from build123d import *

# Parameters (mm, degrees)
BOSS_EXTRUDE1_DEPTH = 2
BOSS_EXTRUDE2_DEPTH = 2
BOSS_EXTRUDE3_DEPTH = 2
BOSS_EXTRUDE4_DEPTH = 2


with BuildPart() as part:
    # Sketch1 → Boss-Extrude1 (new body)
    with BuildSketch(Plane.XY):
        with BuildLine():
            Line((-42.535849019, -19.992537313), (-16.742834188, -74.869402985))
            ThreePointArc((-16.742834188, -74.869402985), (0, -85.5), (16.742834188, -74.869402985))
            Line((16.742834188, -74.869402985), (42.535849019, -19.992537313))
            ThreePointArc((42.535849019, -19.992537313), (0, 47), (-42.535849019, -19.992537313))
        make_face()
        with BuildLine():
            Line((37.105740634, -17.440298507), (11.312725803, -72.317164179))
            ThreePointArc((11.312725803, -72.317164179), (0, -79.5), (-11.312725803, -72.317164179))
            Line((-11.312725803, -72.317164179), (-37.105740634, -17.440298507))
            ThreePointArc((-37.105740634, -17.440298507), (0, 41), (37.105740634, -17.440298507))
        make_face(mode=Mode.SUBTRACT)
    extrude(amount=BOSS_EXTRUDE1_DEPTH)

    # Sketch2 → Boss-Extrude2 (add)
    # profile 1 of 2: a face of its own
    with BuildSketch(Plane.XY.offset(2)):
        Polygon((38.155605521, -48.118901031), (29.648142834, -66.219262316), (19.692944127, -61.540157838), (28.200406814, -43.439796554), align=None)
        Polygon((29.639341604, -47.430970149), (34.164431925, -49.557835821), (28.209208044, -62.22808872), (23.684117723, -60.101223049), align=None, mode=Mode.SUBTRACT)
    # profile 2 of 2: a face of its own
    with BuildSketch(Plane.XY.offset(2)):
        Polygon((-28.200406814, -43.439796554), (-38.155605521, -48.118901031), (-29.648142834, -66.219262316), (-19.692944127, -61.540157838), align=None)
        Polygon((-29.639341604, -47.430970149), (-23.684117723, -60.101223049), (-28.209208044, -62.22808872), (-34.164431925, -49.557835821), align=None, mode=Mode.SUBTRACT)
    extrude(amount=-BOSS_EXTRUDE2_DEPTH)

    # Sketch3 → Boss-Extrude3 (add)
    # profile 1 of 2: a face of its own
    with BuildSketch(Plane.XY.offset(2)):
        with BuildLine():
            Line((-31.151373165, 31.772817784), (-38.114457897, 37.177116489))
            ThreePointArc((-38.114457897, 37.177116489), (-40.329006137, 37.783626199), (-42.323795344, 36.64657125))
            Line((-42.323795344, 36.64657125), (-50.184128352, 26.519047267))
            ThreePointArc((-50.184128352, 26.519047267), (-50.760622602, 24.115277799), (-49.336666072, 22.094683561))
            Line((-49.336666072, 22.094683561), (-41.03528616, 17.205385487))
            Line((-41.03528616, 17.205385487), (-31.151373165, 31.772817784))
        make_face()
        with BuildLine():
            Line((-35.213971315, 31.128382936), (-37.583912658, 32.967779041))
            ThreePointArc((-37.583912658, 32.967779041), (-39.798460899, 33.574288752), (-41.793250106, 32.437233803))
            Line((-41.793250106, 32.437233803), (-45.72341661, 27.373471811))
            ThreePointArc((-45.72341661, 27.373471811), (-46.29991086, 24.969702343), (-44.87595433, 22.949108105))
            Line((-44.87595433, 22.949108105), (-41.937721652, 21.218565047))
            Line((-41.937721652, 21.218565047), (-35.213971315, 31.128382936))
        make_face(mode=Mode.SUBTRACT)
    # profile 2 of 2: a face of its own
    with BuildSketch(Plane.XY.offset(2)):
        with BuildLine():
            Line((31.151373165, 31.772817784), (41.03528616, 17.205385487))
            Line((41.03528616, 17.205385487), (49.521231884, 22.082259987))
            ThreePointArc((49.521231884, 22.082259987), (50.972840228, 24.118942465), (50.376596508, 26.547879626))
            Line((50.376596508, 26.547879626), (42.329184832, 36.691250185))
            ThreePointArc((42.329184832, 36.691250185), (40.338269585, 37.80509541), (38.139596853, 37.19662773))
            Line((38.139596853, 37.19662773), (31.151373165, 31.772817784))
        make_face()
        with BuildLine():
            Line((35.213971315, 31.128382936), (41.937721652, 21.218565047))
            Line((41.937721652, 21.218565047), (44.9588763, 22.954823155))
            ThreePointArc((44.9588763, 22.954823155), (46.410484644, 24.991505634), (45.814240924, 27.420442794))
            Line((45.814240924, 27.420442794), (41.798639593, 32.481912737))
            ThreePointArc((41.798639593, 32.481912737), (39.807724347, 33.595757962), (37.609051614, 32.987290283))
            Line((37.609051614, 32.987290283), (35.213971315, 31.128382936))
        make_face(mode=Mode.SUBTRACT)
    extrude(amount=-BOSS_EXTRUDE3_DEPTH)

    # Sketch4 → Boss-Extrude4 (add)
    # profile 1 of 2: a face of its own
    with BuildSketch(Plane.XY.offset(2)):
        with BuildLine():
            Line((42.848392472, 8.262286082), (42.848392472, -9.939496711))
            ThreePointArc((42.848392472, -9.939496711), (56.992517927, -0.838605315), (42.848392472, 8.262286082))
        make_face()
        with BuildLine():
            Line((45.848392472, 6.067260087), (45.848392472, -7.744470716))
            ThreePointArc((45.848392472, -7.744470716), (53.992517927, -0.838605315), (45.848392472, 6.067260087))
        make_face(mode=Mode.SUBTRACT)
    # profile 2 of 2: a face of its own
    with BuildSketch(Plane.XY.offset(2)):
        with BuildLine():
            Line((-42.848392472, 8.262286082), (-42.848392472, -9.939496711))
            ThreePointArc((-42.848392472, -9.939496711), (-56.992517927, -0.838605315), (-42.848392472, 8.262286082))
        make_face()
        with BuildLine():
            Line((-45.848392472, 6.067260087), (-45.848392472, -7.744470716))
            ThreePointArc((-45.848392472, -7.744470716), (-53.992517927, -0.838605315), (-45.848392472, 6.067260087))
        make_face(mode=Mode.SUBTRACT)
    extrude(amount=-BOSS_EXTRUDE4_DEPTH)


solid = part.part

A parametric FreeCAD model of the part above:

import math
import FreeCAD as App
import Part
import Sketcher

V = App.Vector
Q = App.Units.Quantity

doc = App.newDocument("Part")
params = doc.addObject("Spreadsheet::Sheet", "Params")
for row, (alias, value) in enumerate([
    ("sketch1_radius", "47 mm"),
    ("sketch1_radius2", "41 mm"),
    ("sketch1_radius3", "18.5 mm"),
    ("pad1_length", "2 mm"),
    ("sketch2_length", "20 mm"),
    ("sketch2_length2", "11 mm"),
    ("sketch2_length3", "5 mm"),
    ("sketch2_length4", "14 mm"),
    ("pad2_length", "2 mm"),
    ("sketch3_radius", "3 mm"),
    ("sketch3_length", "3 mm"),
    ("pad3_length", "2 mm"),
    ("sketch4_radius", "10 mm"),
    ("sketch4_radius2", "7 mm"),
    ("pad4_length", "2 mm"),
], start=1):
    params.set(f"A{row}", alias)
    params.set(f"B{row}", "=" + value)
    params.setAlias(f"B{row}", alias)

body = doc.addObject("PartDesign::Body", "Body")

sketch1 = body.newObject("Sketcher::SketchObject", "Sketch")
sketch1.AttachmentSupport = (doc.getObject("XY_Plane"), [""])
sketch1.MapMode = "FlatFace"
sketch1.addGeometry(Part.LineSegment(V(-42.535849, -19.992537, 0), V(-16.742834, -74.869403, 0)), False)
sketch1.addGeometry(Part.ArcOfCircle(Part.Circle(V(0, -67, 0), V(0, 0, 1), 18.5), math.radians(-154.825716), math.radians(-25.174284)), False)
sketch1.addGeometry(Part.LineSegment(V(16.742834, -74.869403, 0), V(42.535849, -19.992537, 0)), False)
sketch1.addGeometry(Part.ArcOfCircle(Part.Circle(V(0, 0, 0), V(0, 0, 1), 47), math.radians(-25.174284), math.radians(205.174284)), False)
sketch1.addGeometry(Part.ArcOfCircle(Part.Circle(V(0, 0, 0), V(0, 0, 1), 41), math.radians(-25.174284), math.radians(205.174284)), False)
sketch1.addGeometry(Part.LineSegment(V(37.105741, -17.440299, 0), V(11.312726, -72.317164, 0)), False)
sketch1.addGeometry(Part.ArcOfCircle(Part.Circle(V(0, -67, 0), V(0, 0, 1), 12.5), math.radians(-154.825716), math.radians(-25.174284)), False)
sketch1.addGeometry(Part.LineSegment(V(-11.312726, -72.317164, 0), V(-37.105741, -17.440299, 0)), False)
sketch1.addConstraint(Sketcher.Constraint("Tangent", 0, 2, 1, 1))
sketch1.addConstraint(Sketcher.Constraint("Tangent", 1, 2, 2, 1))
sketch1.addConstraint(Sketcher.Constraint("Tangent", 2, 2, 3, 1))
sketch1.addConstraint(Sketcher.Constraint("Tangent", 3, 2, 0, 1))
sketch1.addConstraint(Sketcher.Constraint("Tangent", 4, 1, 5, 1))
sketch1.addConstraint(Sketcher.Constraint("Tangent", 5, 2, 6, 2))
sketch1.addConstraint(Sketcher.Constraint("Tangent", 6, 1, 7, 1))
sketch1.addConstraint(Sketcher.Constraint("Tangent", 7, 2, 4, 2))
sketch1.addConstraint(Sketcher.Constraint("Coincident", 3, 3, -1, 1))
sketch1.addConstraint(Sketcher.Constraint("Coincident", 4, 3, -1, 1))
sketch1.addConstraint(Sketcher.Constraint("Coincident", 6, 3, 1, 3))
sketch1.addConstraint(Sketcher.Constraint("PointOnObject", 1, 3, -2))
sketch1.addConstraint(Sketcher.Constraint("Parallel", 2, 5))
sketch1.addConstraint(Sketcher.Constraint("Radius", 3, Q("47 mm")))
sketch1.addConstraint(Sketcher.Constraint("Radius", 4, Q("41 mm")))
sketch1.addConstraint(Sketcher.Constraint("Radius", 1, Q("18.5 mm")))
sketch1.addConstraint(Sketcher.Constraint("DistanceY", 1, 3, -1, 1, Q("67 mm")))
sketch1.setExpression("Constraints[13]", "Params.sketch1_radius")
sketch1.setExpression("Constraints[14]", "Params.sketch1_radius2")
sketch1.setExpression("Constraints[15]", "Params.sketch1_radius3")
pad1 = body.newObject("PartDesign::Pad", "Pad")
pad1.Profile = sketch1
pad1.setExpression("Length", "Params.pad1_length")

sketch2 = body.newObject("Sketcher::SketchObject", "Sketch001")
sketch2.AttachmentSupport = (doc.getObject("XY_Plane"), [""])
sketch2.MapMode = "FlatFace"
sketch2.AttachmentOffset = App.Placement(V(0, 0, 2), App.Rotation())
sketch2.addGeometry(Part.LineSegment(V(29.648143, -66.219262, 0), V(38.155606, -48.118901, 0)), False)
sketch2.addGeometry(Part.LineSegment(V(38.155606, -48.118901, 0), V(28.200407, -43.439797, 0)), False)
sketch2.addGeometry(Part.LineSegment(V(28.200407, -43.439797, 0), V(19.692944, -61.540158, 0)), False)
sketch2.addGeometry(Part.LineSegment(V(19.692944, -61.540158, 0), V(29.648143, -66.219262, 0)), False)
sketch2.addGeometry(Part.LineSegment(V(29.639342, -47.43097, 0), V(34.164432, -49.557836, 0)), False)
sketch2.addGeometry(Part.LineSegment(V(34.164432, -49.557836, 0), V(28.209208, -62.228089, 0)), False)
sketch2.addGeometry(Part.LineSegment(V(28.209208, -62.228089, 0), V(23.684118, -60.101223, 0)), False)
sketch2.addGeometry(Part.LineSegment(V(23.684118, -60.101223, 0), V(29.639342, -47.43097, 0)), False)
sketch2.addGeometry(Part.LineSegment(V(-28.200407, -43.439797, 0), V(-38.155606, -48.118901, 0)), False)
sketch2.addGeometry(Part.LineSegment(V(-38.155606, -48.118901, 0), V(-29.648143, -66.219262, 0)), False)
sketch2.addGeometry(Part.LineSegment(V(-29.648143, -66.219262, 0), V(-19.692944, -61.540158, 0)), False)
sketch2.addGeometry(Part.LineSegment(V(-19.692944, -61.540158, 0), V(-28.200407, -43.439797, 0)), False)
sketch2.addGeometry(Part.LineSegment(V(-34.164432, -49.557836, 0), V(-29.639342, -47.43097, 0)), False)
sketch2.addGeometry(Part.LineSegment(V(-29.639342, -47.43097, 0), V(-23.684118, -60.101223, 0)), False)
sketch2.addGeometry(Part.LineSegment(V(-23.684118, -60.101223, 0), V(-28.209208, -62.228089, 0)), False)
sketch2.addGeometry(Part.LineSegment(V(-28.209208, -62.228089, 0), V(-34.164432, -49.557836, 0)), False)
sketch2.addConstraint(Sketcher.Constraint("Coincident", 0, 2, 1, 1))
sketch2.addConstraint(Sketcher.Constraint("Coincident", 1, 2, 2, 1))
sketch2.addConstraint(Sketcher.Constraint("Coincident", 2, 2, 3, 1))
sketch2.addConstraint(Sketcher.Constraint("Coincident", 3, 2, 0, 1))
sketch2.addConstraint(Sketcher.Constraint("Coincident", 4, 2, 5, 1))
sketch2.addConstraint(Sketcher.Constraint("Coincident", 5, 2, 6, 1))
sketch2.addConstraint(Sketcher.Constraint("Coincident", 6, 2, 7, 1))
sketch2.addConstraint(Sketcher.Constraint("Coincident", 7, 2, 4, 1))
sketch2.addConstraint(Sketcher.Constraint("Coincident", 8, 2, 9, 1))
sketch2.addConstraint(Sketcher.Constraint("Coincident", 9, 2, 10, 1))
sketch2.addConstraint(Sketcher.Constraint("Coincident", 10, 2, 11, 1))
sketch2.addConstraint(Sketcher.Constraint("Coincident", 11, 2, 8, 1))
sketch2.addConstraint(Sketcher.Constraint("Coincident", 12, 2, 13, 1))
sketch2.addConstraint(Sketcher.Constraint("Coincident", 13, 2, 14, 1))
sketch2.addConstraint(Sketcher.Constraint("Coincident", 14, 2, 15, 1))
sketch2.addConstraint(Sketcher.Constraint("Coincident", 15, 2, 12, 1))
sketch2.addConstraint(Sketcher.Constraint("Symmetric", 0, 2, 8, 2, -2))
sketch2.addConstraint(Sketcher.Constraint("Symmetric", 3, 2, 9, 2, -2))
sketch2.addConstraint(Sketcher.Constraint("Symmetric", 2, 2, 10, 2, -2))
sketch2.addConstraint(Sketcher.Constraint("Symmetric", 1, 2, 11, 2, -2))
sketch2.addConstraint(Sketcher.Constraint("Symmetric", 7, 2, 12, 2, -2))
sketch2.addConstraint(Sketcher.Constraint("Symmetric", 6, 2, 13, 2, -2))
sketch2.addConstraint(Sketcher.Constraint("Symmetric", 5, 2, 14, 2, -2))
sketch2.addConstraint(Sketcher.Constraint("Symmetric", 4, 2, 15, 2, -2))
sketch2.addConstraint(Sketcher.Constraint("Perpendicular", 0, 1))
sketch2.addConstraint(Sketcher.Constraint("Perpendicular", 1, 2))
sketch2.addConstraint(Sketcher.Constraint("Perpendicular", 2, 3))
sketch2.addConstraint(Sketcher.Constraint("Parallel", 3, 4))
sketch2.addConstraint(Sketcher.Constraint("Perpendicular", 4, 5))
sketch2.addConstraint(Sketcher.Constraint("Perpendicular", 5, 6))
sketch2.addConstraint(Sketcher.Constraint("Perpendicular", 6, 7))
sketch2.addConstraint(Sketcher.Constraint("Distance", 0, Q("20 mm")))
sketch2.addConstraint(Sketcher.Constraint("Distance", 1, Q("11 mm")))
sketch2.addConstraint(Sketcher.Constraint("Distance", 4, Q("5 mm")))
sketch2.addConstraint(Sketcher.Constraint("Distance", 5, Q("14 mm")))
sketch2.addConstraint(Sketcher.Constraint("DistanceY", 0, 2, -1, 1, Q("48.118901 mm")))
sketch2.addConstraint(Sketcher.Constraint("DistanceX", 1, 2, 0, 2, Q("9.955199 mm")))
sketch2.addConstraint(Sketcher.Constraint("DistanceX", 1, 2, 5, 2, Q("0.008801 mm")))
sketch2.addConstraint(Sketcher.Constraint("DistanceX", -1, 1, 4, 2, Q("34.164432 mm")))
sketch2.addConstraint(Sketcher.Constraint("DistanceY", 5, 2, -1, 1, Q("62.228089 mm")))
sketch2.setExpression("Constraints[31]", "Params.sketch2_length")
sketch2.setExpression("Constraints[32]", "Params.sketch2_length2")
sketch2.setExpression("Constraints[33]", "Params.sketch2_length3")
sketch2.setExpression("Constraints[34]", "Params.sketch2_length4")
pad2 = body.newObject("PartDesign::Pad", "Pad001")
pad2.Profile = sketch2
pad2.setExpression("Length", "Params.pad2_length")
pad2.Reversed = True

sketch3 = body.newObject("Sketcher::SketchObject", "Sketch002")
sketch3.AttachmentSupport = (doc.getObject("XY_Plane"), [""])
sketch3.MapMode = "FlatFace"
sketch3.AttachmentOffset = App.Placement(V(0, 0, 2), App.Rotation())
sketch3.addGeometry(Part.LineSegment(V(-31.151373, 31.772818, 0), V(-38.114458, 37.177116, 0)), False)
sketch3.addGeometry(Part.ArcOfCircle(Part.Circle(V(-39.953854, 34.807175, 0), V(0, 0, 1), 3), math.radians(52.183684), math.radians(142.183684)), False)
sketch3.addGeometry(Part.LineSegment(V(-42.323795, 36.646571, 0), V(-50.184128, 26.519047, 0)), False)
sketch3.addGeometry(Part.ArcOfCircle(Part.Circle(V(-47.814187, 24.679651, 0), V(0, 0, 1), 3), math.radians(142.183684), math.radians(239.503015)), False)
sketch3.addGeometry(Part.LineSegment(V(-49.336666, 22.094684, 0), V(-41.035286, 17.205385, 0)), False)
sketch3.addGeometry(Part.LineSegment(V(-41.035286, 17.205385, 0), V(-31.151373, 31.772818, 0)), False)
sketch3.addGeometry(Part.LineSegment(V(-37.583913, 32.967779, 0), V(-35.213971, 31.128383, 0)), False)
sketch3.addGeometry(Part.LineSegment(V(-35.213971, 31.128383, 0), V(-41.937722, 21.218565, 0)), False)
sketch3.addGeometry(Part.LineSegment(V(-41.937722, 21.218565, 0), V(-44.875954, 22.949108, 0)), False)
sketch3.addGeometry(Part.ArcOfCircle(Part.Circle(V(-43.353475, 25.534076, 0), V(0, 0, 1), 3), math.radians(142.183684), math.radians(239.503015)), False)
sketch3.addGeometry(Part.LineSegment(V(-45.723417, 27.373472, 0), V(-41.79325, 32.437234, 0)), False)
sketch3.addGeometry(Part.ArcOfCircle(Part.Circle(V(-39.423309, 30.597838, 0), V(0, 0, 1), 3), math.radians(52.183684), math.radians(142.183684)), False)
sketch3.addGeometry(Part.LineSegment(V(31.151373, 31.772818, 0), V(41.035286, 17.205385, 0)), False)
sketch3.addGeometry(Part.LineSegment(V(41.035286, 17.205385, 0), V(49.521232, 22.08226, 0)), False)
sketch3.addGeometry(Part.ArcOfCircle(Part.Circle(V(48.026405, 24.683316, 0), V(0, 0, 1), 3), math.radians(-60.11401), math.radians(38.427311)), False)
sketch3.addGeometry(Part.LineSegment(V(50.376597, 26.54788, 0), V(42.329185, 36.69125, 0)), False)
sketch3.addGeometry(Part.ArcOfCircle(Part.Circle(V(39.978993, 34.826686, 0), V(0, 0, 1), 3), math.radians(38.427311), math.radians(127.816316)), False)
sketch3.addGeometry(Part.LineSegment(V(38.139597, 37.196628, 0), V(31.151373, 31.772818, 0)), False)
sketch3.addGeometry(Part.LineSegment(V(41.937722, 21.218565, 0), V(35.213971, 31.128383, 0)), False)
sketch3.addGeometry(Part.LineSegment(V(35.213971, 31.128383, 0), V(37.609052, 32.98729, 0)), False)
sketch3.addGeometry(Part.ArcOfCircle(Part.Circle(V(39.448448, 30.617349, 0), V(0, 0, 1), 3), math.radians(38.427311), math.radians(127.816316)), False)
sketch3.addGeometry(Part.LineSegment(V(41.79864, 32.481913, 0), V(45.814241, 27.420443, 0)), False)
sketch3.addGeometry(Part.ArcOfCircle(Part.Circle(V(43.464049, 25.555879, 0), V(0, 0, 1), 3), math.radians(-60.11401), math.radians(38.427311)), False)
sketch3.addGeometry(Part.LineSegment(V(44.958876, 22.954823, 0), V(41.937722, 21.218565, 0)), False)
sketch3.addConstraint(Sketcher.Constraint("Tangent", 0, 2, 1, 1))
sketch3.addConstraint(Sketcher.Constraint("Tangent", 1, 2, 2, 1))
sketch3.addConstraint(Sketcher.Constraint("Tangent", 2, 2, 3, 1))
sketch3.addConstraint(Sketcher.Constraint("Tangent", 3, 2, 4, 1))
sketch3.addConstraint(Sketcher.Constraint("Coincident", 4, 2, 5, 1))
sketch3.addConstraint(Sketcher.Constraint("Coincident", 5, 2, 0, 1))
sketch3.addConstraint(Sketcher.Constraint("Coincident", 6, 2, 7, 1))
sketch3.addConstraint(Sketcher.Constraint("Coincident", 7, 2, 8, 1))
sketch3.addConstraint(Sketcher.Constraint("Tangent", 8, 2, 9, 2))
sketch3.addConstraint(Sketcher.Constraint("Tangent", 9, 1, 10, 1))
sketch3.addConstraint(Sketcher.Constraint("Tangent", 10, 2, 11, 2))
sketch3.addConstraint(Sketcher.Constraint("Tangent", 11, 1, 6, 1))
sketch3.addConstraint(Sketcher.Constraint("Coincident", 12, 2, 13, 1))
sketch3.addConstraint(Sketcher.Constraint("Tangent", 13, 2, 14, 1))
sketch3.addConstraint(Sketcher.Constraint("Tangent", 14, 2, 15, 1))
sketch3.addConstraint(Sketcher.Constraint("Tangent", 15, 2, 16, 1))
sketch3.addConstraint(Sketcher.Constraint("Tangent", 16, 2, 17, 1))
sketch3.addConstraint(Sketcher.Constraint("Coincident", 17, 2, 12, 1))
sketch3.addConstraint(Sketcher.Constraint("Coincident", 18, 2, 19, 1))
sketch3.addConstraint(Sketcher.Constraint("Tangent", 19, 2, 20, 2))
sketch3.addConstraint(Sketcher.Constraint("Tangent", 20, 1, 21, 1))
sketch3.addConstraint(Sketcher.Constraint("Tangent", 21, 2, 22, 2))
sketch3.addConstraint(Sketcher.Constraint("Tangent", 22, 1, 23, 1))
sketch3.addConstraint(Sketcher.Constraint("Coincident", 23, 2, 18, 1))
sketch3.addConstraint(Sketcher.Constraint("Equal", 1, 3))
sketch3.addConstraint(Sketcher.Constraint("Equal", 3, 9))
sketch3.addConstraint(Sketcher.Constraint("Equal", 9, 11))
sketch3.addConstraint(Sketcher.Constraint("Equal", 11, 14))
sketch3.addConstraint(Sketcher.Constraint("Equal", 14, 16))
sketch3.addConstraint(Sketcher.Constraint("Equal", 16, 20))
sketch3.addConstraint(Sketcher.Constraint("Equal", 20, 22))
sketch3.addConstraint(Sketcher.Constraint("Symmetric", 4, 2, 12, 2, -2))
sketch3.addConstraint(Sketcher.Constraint("Symmetric", 5, 2, 17, 2, -2))
sketch3.addConstraint(Sketcher.Constraint("Symmetric", 6, 2, 18, 2, -2))
sketch3.addConstraint(Sketcher.Constraint("Symmetric", 7, 2, 23, 2, -2))
sketch3.addConstraint(Sketcher.Constraint("Perpendicular", 0, 2))
sketch3.addConstraint(Sketcher.Constraint("Perpendicular", 2, 6))
sketch3.addConstraint(Sketcher.Constraint("Parallel", 5, 7))
sketch3.addConstraint(Sketcher.Constraint("Parallel", 4, 8))
sketch3.addConstraint(Sketcher.Constraint("Perpendicular", 6, 10))
sketch3.addConstraint(Sketcher.Constraint("Parallel", 17, 19))
sketch3.addConstraint(Sketcher.Constraint("Parallel", 15, 21))
sketch3.addConstraint(Sketcher.Constraint("Parallel", 13, 23))
sketch3.addConstraint(Sketcher.Constraint("Radius", 1, Q("3 mm")))
sketch3.addConstraint(Sketcher.Constraint("Distance", 6, Q("3 mm")))
sketch3.addConstraint(Sketcher.Constraint("DistanceY", 22, 3, 14, 2, Q("0.992001 mm")))
sketch3.addConstraint(Sketcher.Constraint("Distance", 13, Q("9.787501 mm")))
sketch3.addConstraint(Sketcher.Constraint("DistanceY", 9, 3, 1, 3, Q("9.273099 mm")))
sketch3.addConstraint(Sketcher.Constraint("DistanceX", 11, 3, 16, 3, Q("79.402302 mm")))
sketch3.addConstraint(Sketcher.Constraint("DistanceX", 1, 3, 20, 3, Q("79.402302 mm")))
sketch3.addConstraint(Sketcher.Constraint("DistanceX", 20, 3, 22, 3, Q("4.015601 mm")))
sketch3.addConstraint(Sketcher.Constraint("DistanceY", 4, 2, 3, 2, Q("4.889298 mm")))
sketch3.addConstraint(Sketcher.Constraint("DistanceX", 3, 3, 4, 2, Q("6.778901 mm")))
sketch3.addConstraint(Sketcher.Constraint("DistanceY", 5, 2, 0, 2, Q("5.404299 mm")))
sketch3.addConstraint(Sketcher.Constraint("DistanceX", 6, 2, 5, 2, Q("4.062598 mm")))
sketch3.addConstraint(Sketcher.Constraint("DistanceY", 12, 2, 16, 3, Q("17.621301 mm")))
sketch3.addConstraint(Sketcher.Constraint("DistanceY", 20, 3, 15, 2, Q("6.073901 mm")))
sketch3.addConstraint(Sketcher.Constraint("Distance", 0, Q("8.814249 mm")))
sketch3.addConstraint(Sketcher.Constraint("Distance", 5, Q("17.604029 mm")))
sketch3.addConstraint(Sketcher.Constraint("DistanceY", -1, 1, 3, 3, Q("24.679651 mm")))
sketch3.setExpression("Constraints[43]", "Params.sketch3_radius")
sketch3.setExpression("Constraints[44]", "Params.sketch3_length")
pad3 = body.newObject("PartDesign::Pad", "Pad002")
pad3.Profile = sketch3
pad3.setExpression("Length", "Params.pad3_length")
pad3.Reversed = True

sketch4 = body.newObject("Sketcher::SketchObject", "Sketch003")
sketch4.AttachmentSupport = (doc.getObject("XY_Plane"), [""])
sketch4.MapMode = "FlatFace"
sketch4.AttachmentOffset = App.Placement(V(0, 0, 2), App.Rotation())
sketch4.addGeometry(Part.LineSegment(V(42.848392, 8.262286, 0), V(42.848392, -9.939497, 0)), False)
sketch4.addGeometry(Part.ArcOfCircle(Part.Circle(V(46.992518, -0.838605, 0), V(0, 0, 1), 10), math.radians(-114.482327), math.radians(114.482327)), False)
sketch4.addGeometry(Part.LineSegment(V(45.848392, -7.744471, 0), V(45.848392, 6.06726, 0)), False)
sketch4.addGeometry(Part.ArcOfCircle(Part.Circle(V(46.992518, -0.838605, 0), V(0, 0, 1), 7), math.radians(-99.407), math.radians(99.407)), False)
sketch4.addGeometry(Part.LineSegment(V(-42.848392, -9.939497, 0), V(-42.848392, 8.262286, 0)), False)
sketch4.addGeometry(Part.ArcOfCircle(Part.Circle(V(-46.992518, -0.838605, 0), V(0, 0, 1), 10), math.radians(65.517673), math.radians(294.482327)), False)
sketch4.addGeometry(Part.LineSegment(V(-45.848392, 6.06726, 0), V(-45.848392, -7.744471, 0)), False)
sketch4.addGeometry(Part.ArcOfCircle(Part.Circle(V(-46.992518, -0.838605, 0), V(0, 0, 1), 7), math.radians(80.593), math.radians(279.407)), False)
sketch4.addConstraint(Sketcher.Constraint("Coincident", 0, 1, 1, 2))
sketch4.addConstraint(Sketcher.Constraint("Coincident", 1, 1, 0, 2))
sketch4.addConstraint(Sketcher.Constraint("Coincident", 2, 1, 3, 1))
sketch4.addConstraint(Sketcher.Constraint("Coincident", 3, 2, 2, 2))
sketch4.addConstraint(Sketcher.Constraint("Coincident", 4, 1, 5, 2))
sketch4.addConstraint(Sketcher.Constraint("Coincident", 5, 1, 4, 2))
sketch4.addConstraint(Sketcher.Constraint("Coincident", 6, 1, 7, 1))
sketch4.addConstraint(Sketcher.Constraint("Coincident", 7, 2, 6, 2))
sketch4.addConstraint(Sketcher.Constraint("Vertical", 0))
sketch4.addConstraint(Sketcher.Constraint("Vertical", 2))
sketch4.addConstraint(Sketcher.Constraint("Vertical", 4))
sketch4.addConstraint(Sketcher.Constraint("Vertical", 6))
sketch4.addConstraint(Sketcher.Constraint("Coincident", 3, 3, 1, 3))
sketch4.addConstraint(Sketcher.Constraint("Coincident", 7, 3, 5, 3))
sketch4.addConstraint(Sketcher.Constraint("Equal", 1, 5))
sketch4.addConstraint(Sketcher.Constraint("Equal", 3, 7))
sketch4.addConstraint(Sketcher.Constraint("Symmetric", 1, 3, 5, 3, -2))
sketch4.addConstraint(Sketcher.Constraint("Horizontal", 1, 1, 4, 1))
sketch4.addConstraint(Sketcher.Constraint("Horizontal", 3, 2, 6, 1))
sketch4.addConstraint(Sketcher.Constraint("Radius", 1, Q("10 mm")))
sketch4.addConstraint(Sketcher.Constraint("Radius", 3, Q("7 mm")))
sketch4.addConstraint(Sketcher.Constraint("DistanceX", 1, 1, 2, 1, Q("3 mm")))
sketch4.addConstraint(Sketcher.Constraint("DistanceY", 2, 1, 2, 2, Q("13.811731 mm")))
sketch4.addConstraint(Sketcher.Constraint("DistanceY", 2, 1, -1, 1, Q("7.744471 mm")))
sketch4.addConstraint(Sketcher.Constraint("DistanceX", 5, 3, 0, 1, Q("89.84091 mm")))
sketch4.setExpression("Constraints[19]", "Params.sketch4_radius")
sketch4.setExpression("Constraints[20]", "Params.sketch4_radius2")
pad4 = body.newObject("PartDesign::Pad", "Pad003")
pad4.Profile = sketch4
pad4.setExpression("Length", "Params.pad4_length")
pad4.Reversed = True

doc.recompute()
